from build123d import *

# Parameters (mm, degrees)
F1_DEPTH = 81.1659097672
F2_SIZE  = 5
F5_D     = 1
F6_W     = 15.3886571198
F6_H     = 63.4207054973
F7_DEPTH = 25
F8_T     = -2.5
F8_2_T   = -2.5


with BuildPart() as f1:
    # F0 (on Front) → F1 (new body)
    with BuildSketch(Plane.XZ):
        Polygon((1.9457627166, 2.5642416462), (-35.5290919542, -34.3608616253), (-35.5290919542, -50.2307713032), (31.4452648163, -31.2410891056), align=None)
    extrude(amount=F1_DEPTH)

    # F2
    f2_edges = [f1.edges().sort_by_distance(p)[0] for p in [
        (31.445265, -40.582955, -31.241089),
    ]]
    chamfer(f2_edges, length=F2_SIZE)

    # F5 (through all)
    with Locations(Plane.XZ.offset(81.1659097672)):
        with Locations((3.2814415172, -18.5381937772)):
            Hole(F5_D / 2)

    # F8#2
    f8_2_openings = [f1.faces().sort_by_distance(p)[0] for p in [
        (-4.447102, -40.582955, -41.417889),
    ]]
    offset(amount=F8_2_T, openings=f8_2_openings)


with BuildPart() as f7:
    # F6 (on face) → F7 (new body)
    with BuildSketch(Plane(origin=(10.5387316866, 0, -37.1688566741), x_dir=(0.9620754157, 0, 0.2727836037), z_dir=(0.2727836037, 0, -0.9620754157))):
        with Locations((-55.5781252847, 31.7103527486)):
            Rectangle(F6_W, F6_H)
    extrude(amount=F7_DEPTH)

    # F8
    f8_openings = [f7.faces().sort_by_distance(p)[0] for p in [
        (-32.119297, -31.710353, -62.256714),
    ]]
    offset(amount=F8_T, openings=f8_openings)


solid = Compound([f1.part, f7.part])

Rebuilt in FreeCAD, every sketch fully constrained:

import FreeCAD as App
import Part
import Sketcher
from FreeCAD import Vector


def edges_at(feature, points):
    """Names of the edges that pass closest to the given points."""
    edges = feature.Shape.Edges
    near = lambda p: min(range(len(edges)), key=lambda i: edges[i].distToShape(Part.Vertex(*p))[0])
    return sorted({f"Edge{near(p) + 1}" for p in points})


def faces_at(feature, points):
    """Names of the faces that lie closest to the given points."""
    faces = feature.Shape.Faces
    near = lambda p: min(range(len(faces)), key=lambda i: faces[i].distToShape(Part.Vertex(*p))[0])
    return sorted({f"Face{near(p) + 1}" for p in points})


def add_polygon(sketch, points):
    """Adds a closed chain of lines whose ends are joined by coincident constraints."""
    first, n = sketch.GeometryCount, len(points)
    for a, b in zip(points, points[1:] + points[:1]):
        sketch.addGeometry(Part.LineSegment(App.Vector(*a, 0), App.Vector(*b, 0)), False)
    for i in range(n):
        sketch.addConstraint(Sketcher.Constraint("Coincident", first + i, 2, first + (i + 1) % n, 1))

doc = App.newDocument("Part")
params = doc.addObject("Spreadsheet::Sheet", "Params")
for row, (alias, value) in enumerate([
    ("pad1_length", "81.16591 mm"),
    ("chamfer_size", "5 mm"),
    ("sketch2_diameter", "1 mm"),
    ("hole_diameter", "1 mm"),
    ("thickness_wall", "2.5 mm"),
    ("pad2_length", "25 mm"),
    ("thickness2_wall", "2.5 mm"),
], start=1):
    params.set(f"A{row}", alias)
    params.set(f"B{row}", "=" + value)
    params.setAlias(f"B{row}", alias)

body = doc.addObject("PartDesign::Body", "Body")

# Sketch on XZ plane
sketch1 = doc.addObject("Sketcher::SketchObject", "Sketch")
body.addObject(sketch1)
sketch1.AttachmentSupport = (doc.XZ_Plane, [""])
sketch1.MapMode = "FlatFace"
add_polygon(sketch1, [(2, 3), (-36, -34), (-36, -50), (31, -31)])  # lines 0-3
sketch1.addConstraint(Sketcher.Constraint("Vertical", 1))
sketch1.addConstraint(Sketcher.Constraint("DistanceY", 1, 2, 1, 1, 15.86991))
sketch1.addConstraint(Sketcher.Constraint("Distance", 0, 52.610151))
sketch1.addConstraint(Sketcher.Constraint("DistanceX", 0, 2, -1, 1, 35.529092))
sketch1.addConstraint(Sketcher.Constraint("DistanceY", 0, 2, -1, 1, 34.360862))
sketch1.addConstraint(Sketcher.Constraint("DistanceY", 2, 2, -1, 1, 31.241089))
sketch1.addConstraint(Sketcher.Constraint("DistanceY", -1, 1, 3, 2, 2.564242))
sketch1.addConstraint(Sketcher.Constraint("Distance", 2, 69.614456))
pad1 = doc.addObject("PartDesign::Pad", "Pad")
body.addObject(pad1)
pad1.Profile = sketch1
pad1.setExpression("Length", "Params.pad1_length")
doc.recompute()

chamfer = doc.addObject("PartDesign::Chamfer", "Chamfer")
body.addObject(chamfer)
chamfer.Base = (pad1, edges_at(pad1, [(31.445, -40.583, -31.241)]))
chamfer.setExpression("Size", "Params.chamfer_size")

# Sketch on XZ plane
sketch2 = doc.addObject("Sketcher::SketchObject", "Sketch001")
body.addObject(sketch2)
sketch2.AttachmentSupport = (doc.XZ_Plane, [""])
sketch2.MapMode = "FlatFace"
sketch2.AttachmentOffset = App.Placement(Vector(0, 0, 81.16591), App.Rotation())
sketch2.addGeometry(Part.Circle(Vector(3.3, -18.5, 0), Vector(0, 0, 1), 0.5), False)
sketch2.addConstraint(Sketcher.Constraint("Diameter", 0, 1.0))
sketch2.addConstraint(Sketcher.Constraint("DistanceX", -1, 1, 0, 3, 3.281442))
sketch2.addConstraint(Sketcher.Constraint("DistanceY", 0, 3, -1, 1, 18.538194))
sketch2.setExpression("Constraints[0]", "Params.sketch2_diameter")
doc.recompute()
hole = doc.addObject("PartDesign::Hole", "Hole")
body.addObject(hole)
hole.Profile = sketch2
hole.ThreadType = "None"
hole.setExpression("Diameter", "Params.hole_diameter")
hole.DepthType = "ThroughAll"
doc.recompute()

thickness = doc.addObject("PartDesign::Thickness", "Thickness")
body.addObject(thickness)
thickness.Base = (hole, faces_at(hole, [(-4.447, -40.583, -41.418)]))
thickness.setExpression("Value", "Params.thickness_wall")
thickness.Reversed = True
thickness.Join = "Arc"
body2 = doc.addObject("PartDesign::Body", "Body001")

# Sketch on an angled plane
sketch3 = doc.addObject("Sketcher::SketchObject", "Sketch002")
body2.addObject(sketch3)
sketch3.Placement = App.Placement(Vector(10.538732, 0, -37.168857), App.Rotation(Vector(0.962075416, 0, 0.272783604), Vector(0, -1.000000001, 0), Vector(0.272783604, 0, -0.962075416), "ZXY"))
add_polygon(sketch3, [(-63, 63), (-63, 0), (-48, 0), (-48, 63)])  # lines 0-3
sketch3.addConstraint(Sketcher.Constraint("Vertical", 0))
sketch3.addConstraint(Sketcher.Constraint("Horizontal", 1))
sketch3.addConstraint(Sketcher.Constraint("Vertical", 2))
sketch3.addConstraint(Sketcher.Constraint("Horizontal", 3))
sketch3.addConstraint(Sketcher.Constraint("PointOnObject", 0, 2, -1))
sketch3.addConstraint(Sketcher.Constraint("DistanceX", 1, 1, 1, 2, 15.388657))
sketch3.addConstraint(Sketcher.Constraint("DistanceY", 0, 2, 0, 1, 63.420706))
sketch3.addConstraint(Sketcher.Constraint("DistanceX", 0, 2, -1, 1, 63.272454))
pad2 = doc.addObject("PartDesign::Pad", "Pad001")
body2.addObject(pad2)
pad2.Profile = sketch3
pad2.setExpression("Length", "Params.pad2_length")
doc.recompute()

thickness2 = doc.addObject("PartDesign::Thickness", "Thickness001")
body2.addObject(thickness2)
thickness2.Base = (pad2, faces_at(pad2, [(-32.119, -31.71, -62.257)]))
thickness2.setExpression("Value", "Params.thickness2_wall")
thickness2.Reversed = True
thickness2.Join = "Arc"

doc.recompute()
